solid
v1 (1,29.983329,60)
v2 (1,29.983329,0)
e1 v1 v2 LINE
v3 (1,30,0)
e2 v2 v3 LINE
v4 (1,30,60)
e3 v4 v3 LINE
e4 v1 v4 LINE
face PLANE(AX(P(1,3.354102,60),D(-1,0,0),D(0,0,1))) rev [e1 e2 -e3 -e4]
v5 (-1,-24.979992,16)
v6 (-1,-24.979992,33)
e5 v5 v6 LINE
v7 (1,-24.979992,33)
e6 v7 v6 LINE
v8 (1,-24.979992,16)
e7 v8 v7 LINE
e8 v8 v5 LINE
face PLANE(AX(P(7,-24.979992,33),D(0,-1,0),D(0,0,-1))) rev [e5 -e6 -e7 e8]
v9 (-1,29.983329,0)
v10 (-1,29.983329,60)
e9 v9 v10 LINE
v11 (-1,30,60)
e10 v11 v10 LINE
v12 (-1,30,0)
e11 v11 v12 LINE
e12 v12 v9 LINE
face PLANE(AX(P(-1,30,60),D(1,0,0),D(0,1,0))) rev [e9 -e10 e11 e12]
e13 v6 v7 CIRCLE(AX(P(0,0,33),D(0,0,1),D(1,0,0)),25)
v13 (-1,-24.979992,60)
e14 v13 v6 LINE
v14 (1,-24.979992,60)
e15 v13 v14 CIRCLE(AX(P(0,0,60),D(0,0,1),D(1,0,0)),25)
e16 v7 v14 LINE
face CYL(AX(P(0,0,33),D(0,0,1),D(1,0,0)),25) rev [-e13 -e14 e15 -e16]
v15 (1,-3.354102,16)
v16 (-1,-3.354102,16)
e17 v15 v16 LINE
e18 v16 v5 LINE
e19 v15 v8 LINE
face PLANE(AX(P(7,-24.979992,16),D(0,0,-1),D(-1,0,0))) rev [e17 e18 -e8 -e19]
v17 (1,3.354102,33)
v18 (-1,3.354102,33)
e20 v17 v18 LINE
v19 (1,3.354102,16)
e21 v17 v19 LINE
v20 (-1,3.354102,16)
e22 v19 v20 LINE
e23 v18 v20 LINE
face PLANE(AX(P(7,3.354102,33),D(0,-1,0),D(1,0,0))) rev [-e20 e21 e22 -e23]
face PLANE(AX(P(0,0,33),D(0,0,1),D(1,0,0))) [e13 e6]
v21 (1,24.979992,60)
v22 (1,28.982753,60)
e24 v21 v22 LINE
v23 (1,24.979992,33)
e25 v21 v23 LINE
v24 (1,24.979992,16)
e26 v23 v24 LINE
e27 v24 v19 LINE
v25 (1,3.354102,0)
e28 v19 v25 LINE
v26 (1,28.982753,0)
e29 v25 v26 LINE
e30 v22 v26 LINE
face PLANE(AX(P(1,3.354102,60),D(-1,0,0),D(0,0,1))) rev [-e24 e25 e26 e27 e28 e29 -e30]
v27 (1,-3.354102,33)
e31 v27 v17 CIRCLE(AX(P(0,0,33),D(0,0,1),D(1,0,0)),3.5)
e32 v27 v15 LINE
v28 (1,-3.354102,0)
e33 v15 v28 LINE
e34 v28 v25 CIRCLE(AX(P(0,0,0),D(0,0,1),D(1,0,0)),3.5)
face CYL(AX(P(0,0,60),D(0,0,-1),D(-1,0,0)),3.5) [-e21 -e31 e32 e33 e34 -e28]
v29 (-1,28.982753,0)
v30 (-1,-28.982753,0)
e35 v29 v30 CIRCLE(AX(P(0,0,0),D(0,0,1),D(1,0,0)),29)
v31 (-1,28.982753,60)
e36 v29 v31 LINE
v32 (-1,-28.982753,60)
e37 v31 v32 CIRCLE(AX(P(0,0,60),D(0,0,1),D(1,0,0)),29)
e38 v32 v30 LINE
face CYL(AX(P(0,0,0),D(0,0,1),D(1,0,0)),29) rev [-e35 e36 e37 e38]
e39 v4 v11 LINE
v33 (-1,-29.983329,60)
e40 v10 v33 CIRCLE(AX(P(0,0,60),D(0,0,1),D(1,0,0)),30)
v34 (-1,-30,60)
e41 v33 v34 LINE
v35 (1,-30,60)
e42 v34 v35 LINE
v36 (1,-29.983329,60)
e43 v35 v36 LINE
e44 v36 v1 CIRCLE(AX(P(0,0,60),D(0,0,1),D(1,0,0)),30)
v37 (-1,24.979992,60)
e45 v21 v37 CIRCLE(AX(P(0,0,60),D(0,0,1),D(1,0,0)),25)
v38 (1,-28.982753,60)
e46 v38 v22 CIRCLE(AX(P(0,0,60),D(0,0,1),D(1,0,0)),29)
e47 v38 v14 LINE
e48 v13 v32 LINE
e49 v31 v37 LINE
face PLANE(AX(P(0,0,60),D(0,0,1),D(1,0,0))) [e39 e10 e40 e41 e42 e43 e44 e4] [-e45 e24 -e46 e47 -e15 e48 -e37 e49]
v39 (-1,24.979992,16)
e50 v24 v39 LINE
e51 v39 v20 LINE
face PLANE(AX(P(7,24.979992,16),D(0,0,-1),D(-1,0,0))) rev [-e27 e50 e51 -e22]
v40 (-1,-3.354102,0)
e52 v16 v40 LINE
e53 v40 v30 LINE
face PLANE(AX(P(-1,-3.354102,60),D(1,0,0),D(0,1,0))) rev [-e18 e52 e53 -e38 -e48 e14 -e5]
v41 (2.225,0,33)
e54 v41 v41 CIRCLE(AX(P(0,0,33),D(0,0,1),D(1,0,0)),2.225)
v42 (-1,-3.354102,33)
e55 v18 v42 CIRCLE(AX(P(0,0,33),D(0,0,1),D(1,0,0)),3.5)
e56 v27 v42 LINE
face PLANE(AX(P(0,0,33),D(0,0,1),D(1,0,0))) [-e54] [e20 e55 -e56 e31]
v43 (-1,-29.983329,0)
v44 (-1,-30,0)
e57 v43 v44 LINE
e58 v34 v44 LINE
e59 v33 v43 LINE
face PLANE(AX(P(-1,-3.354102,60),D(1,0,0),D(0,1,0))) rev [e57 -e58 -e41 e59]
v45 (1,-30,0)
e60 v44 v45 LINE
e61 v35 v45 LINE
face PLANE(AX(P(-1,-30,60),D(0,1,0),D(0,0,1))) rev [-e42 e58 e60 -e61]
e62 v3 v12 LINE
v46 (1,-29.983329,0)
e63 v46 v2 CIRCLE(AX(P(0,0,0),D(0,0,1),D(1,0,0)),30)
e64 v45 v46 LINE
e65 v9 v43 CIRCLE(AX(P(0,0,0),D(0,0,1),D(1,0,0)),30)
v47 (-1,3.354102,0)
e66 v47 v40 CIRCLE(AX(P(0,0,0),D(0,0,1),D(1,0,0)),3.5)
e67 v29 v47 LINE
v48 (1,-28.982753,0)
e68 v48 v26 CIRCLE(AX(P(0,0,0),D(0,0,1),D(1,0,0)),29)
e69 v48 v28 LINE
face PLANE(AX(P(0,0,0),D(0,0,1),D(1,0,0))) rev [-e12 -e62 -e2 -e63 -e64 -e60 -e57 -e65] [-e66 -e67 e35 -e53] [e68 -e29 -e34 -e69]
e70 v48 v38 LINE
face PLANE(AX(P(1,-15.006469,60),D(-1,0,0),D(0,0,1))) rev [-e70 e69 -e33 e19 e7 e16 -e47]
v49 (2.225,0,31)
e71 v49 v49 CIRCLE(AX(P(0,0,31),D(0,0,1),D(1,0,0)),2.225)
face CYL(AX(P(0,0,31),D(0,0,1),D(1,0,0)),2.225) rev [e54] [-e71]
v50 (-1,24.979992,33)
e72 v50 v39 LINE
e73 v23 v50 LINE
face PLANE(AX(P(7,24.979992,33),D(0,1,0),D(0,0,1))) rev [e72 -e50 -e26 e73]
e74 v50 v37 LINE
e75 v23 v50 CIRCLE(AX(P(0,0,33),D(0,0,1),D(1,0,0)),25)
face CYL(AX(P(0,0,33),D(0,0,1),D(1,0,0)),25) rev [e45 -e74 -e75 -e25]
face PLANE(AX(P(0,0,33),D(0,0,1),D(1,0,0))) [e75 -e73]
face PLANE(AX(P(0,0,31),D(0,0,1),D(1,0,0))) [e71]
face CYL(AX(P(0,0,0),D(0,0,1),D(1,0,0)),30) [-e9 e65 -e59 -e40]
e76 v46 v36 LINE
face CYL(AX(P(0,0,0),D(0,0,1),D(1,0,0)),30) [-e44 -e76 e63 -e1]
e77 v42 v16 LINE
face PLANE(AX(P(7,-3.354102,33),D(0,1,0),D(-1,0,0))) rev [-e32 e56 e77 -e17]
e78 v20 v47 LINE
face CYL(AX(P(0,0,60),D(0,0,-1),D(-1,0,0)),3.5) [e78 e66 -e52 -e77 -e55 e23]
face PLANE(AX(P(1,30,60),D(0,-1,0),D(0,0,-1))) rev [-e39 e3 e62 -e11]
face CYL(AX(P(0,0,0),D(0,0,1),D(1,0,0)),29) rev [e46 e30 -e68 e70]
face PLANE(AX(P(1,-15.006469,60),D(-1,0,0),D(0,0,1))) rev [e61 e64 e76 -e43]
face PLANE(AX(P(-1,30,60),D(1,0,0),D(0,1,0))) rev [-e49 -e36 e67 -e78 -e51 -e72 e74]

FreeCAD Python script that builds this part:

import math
import FreeCAD as App
import Part
import Sketcher
Q = App.Units.Quantity

doc = App.newDocument("Part")
body = doc.addObject("PartDesign::Body", "Body")

sketch1 = doc.addObject("Sketcher::SketchObject", "Sketch")
body.addObject(sketch1)
sketch1.AttachmentSupport = (doc.XY_Plane, [""])
sketch1.MapMode = "FlatFace"
sketch1.addGeometry([
    Part.ArcOfCircle(Part.Circle(App.Vector(0, 0, 0), App.Vector(0, 0, 1), 3.5), math.radians(-73.39845), math.radians(73.39845)),
    Part.LineSegment(App.Vector(1, 3.354102, 0), App.Vector(1, 30, 0)),
    Part.LineSegment(App.Vector(1, 30, 0), App.Vector(-1, 30, 0)),
    Part.LineSegment(App.Vector(-1, 30, 0), App.Vector(-1, 3.354102, 0)),
    Part.ArcOfCircle(Part.Circle(App.Vector(0, 0, 0), App.Vector(0, 0, 1), 3.5), math.radians(106.60155), math.radians(253.39845)),
    Part.LineSegment(App.Vector(-1, -3.354102, 0), App.Vector(-1, -30, 0)),
    Part.LineSegment(App.Vector(-1, -30, 0), App.Vector(1, -30, 0)),
    Part.LineSegment(App.Vector(1, -30, 0), App.Vector(1, -3.354102, 0)),
], False)
sketch1.addConstraint([
    Sketcher.Constraint("Coincident", 0, 2, 1, 1),
    Sketcher.Constraint("Coincident", 1, 2, 2, 1),
    Sketcher.Constraint("Coincident", 2, 2, 3, 1),
    Sketcher.Constraint("Coincident", 3, 2, 4, 1),
    Sketcher.Constraint("Coincident", 4, 2, 5, 1),
    Sketcher.Constraint("Coincident", 5, 2, 6, 1),
    Sketcher.Constraint("Coincident", 6, 2, 7, 1),
    Sketcher.Constraint("Coincident", 7, 2, 0, 1),
    Sketcher.Constraint("Vertical", 1),
    Sketcher.Constraint("Horizontal", 2),
    Sketcher.Constraint("Vertical", 3),
    Sketcher.Constraint("Vertical", 5),
    Sketcher.Constraint("Horizontal", 6),
    Sketcher.Constraint("Vertical", 7),
    Sketcher.Constraint("Coincident", 0, 3, -1, 1),
    Sketcher.Constraint("Coincident", 4, 3, -1, 1),
    Sketcher.Constraint("Equal", 0, 4),
    Sketcher.Constraint("Symmetric", 1, 2, 5, 2, -1, 1),
    Sketcher.Constraint("Horizontal", 0, 2, 3, 2),
    Sketcher.Constraint("Horizontal", 4, 2, 7, 2),
    Sketcher.Constraint("Radius", 0, Q("3.5 mm")),
    Sketcher.Constraint("DistanceX", 2, 2, 2, 1, Q("2 mm")),
    Sketcher.Constraint("DistanceY", -1, 1, 1, 2, Q("30 mm")),
])
pad1 = doc.addObject("PartDesign::Pad", "Pad")
body.addObject(pad1)
pad1.Profile = sketch1
pad1.Length = 60

sketch2 = doc.addObject("Sketcher::SketchObject", "Sketch001")
body.addObject(sketch2)
sketch2.AttachmentSupport = (doc.XY_Plane, [""])
sketch2.MapMode = "FlatFace"
sketch2.AttachmentOffset = App.Placement(App.Vector(0, 0, 60), App.Rotation())
sketch2.addGeometry([
    Part.Circle(App.Vector(0, 0, 0), App.Vector(0, 0, 1), 30),
    Part.Circle(App.Vector(0, 0, 0), App.Vector(0, 0, 1), 29),
], False)
sketch2.addConstraint([
    Sketcher.Constraint("Coincident", 0, 3, -1, 1),
    Sketcher.Constraint("Coincident", 1, 3, -1, 1),
    Sketcher.Constraint("Diameter", 0, Q("60 mm")),
    Sketcher.Constraint("Diameter", 1, Q("58 mm")),
])
pad2 = doc.addObject("PartDesign::Pad", "Pad001")
body.addObject(pad2)
pad2.Profile = sketch2
pad2.Length = 60
pad2.Reversed = True

sketch3 = doc.addObject("Sketcher::SketchObject", "Sketch002")
body.addObject(sketch3)
sketch3.AttachmentSupport = (doc.XY_Plane, [""])
sketch3.MapMode = "FlatFace"
sketch3.AttachmentOffset = App.Placement(App.Vector(0, 0, 60), App.Rotation())
sketch3.addGeometry(Part.Circle(App.Vector(0, 0, 0), App.Vector(0, 0, 1), 25), False)
sketch3.addConstraint([
    Sketcher.Constraint("Coincident", 0, 3, -1, 1),
    Sketcher.Constraint("Diameter", 0, Q("50 mm")),
])
pocket1 = doc.addObject("PartDesign::Pocket", "Pocket")
body.addObject(pocket1)
pocket1.Profile = sketch3
pocket1.Length = 27

sketch4 = doc.addObject("Sketcher::SketchObject", "Sketch003")
body.addObject(sketch4)
sketch4.AttachmentSupport = (doc.YZ_Plane, [""])
sketch4.MapMode = "FlatFace"
sketch4.AttachmentOffset = App.Placement(App.Vector(0, 0, -1), App.Rotation())
sketch4.addGeometry([
    Part.LineSegment(App.Vector(-3.354102, 16, 0), App.Vector(-24.979992, 16, 0)),
    Part.LineSegment(App.Vector(-24.979992, 16, 0), App.Vector(-24.979992, 33, 0)),
    Part.LineSegment(App.Vector(-24.979992, 33, 0), App.Vector(-3.354102, 33, 0)),
    Part.LineSegment(App.Vector(-3.354102, 33, 0), App.Vector(-3.354102, 16, 0)),
    Part.LineSegment(App.Vector(24.979992, 16, 0), App.Vector(3.354102, 16, 0)),
    Part.LineSegment(App.Vector(3.354102, 16, 0), App.Vector(3.354102, 33, 0)),
    Part.LineSegment(App.Vector(3.354102, 33, 0), App.Vector(24.979992, 33, 0)),
    Part.LineSegment(App.Vector(24.979992, 33, 0), App.Vector(24.979992, 16, 0)),
], False)
sketch4.addConstraint([
    Sketcher.Constraint("Coincident", 0, 2, 1, 1),
    Sketcher.Constraint("Coincident", 1, 2, 2, 1),
    Sketcher.Constraint("Coincident", 2, 2, 3, 1),
    Sketcher.Constraint("Coincident", 3, 2, 0, 1),
    Sketcher.Constraint("Coincident", 4, 2, 5, 1),
    Sketcher.Constraint("Coincident", 5, 2, 6, 1),
    Sketcher.Constraint("Coincident", 6, 2, 7, 1),
    Sketcher.Constraint("Coincident", 7, 2, 4, 1),
    Sketcher.Constraint("Horizontal", 0),
    Sketcher.Constraint("Vertical", 1),
    Sketcher.Constraint("Horizontal", 2),
    Sketcher.Constraint("Vertical", 3),
    Sketcher.Constraint("Horizontal", 4),
    Sketcher.Constraint("Vertical", 5),
    Sketcher.Constraint("Horizontal", 6),
    Sketcher.Constraint("Vertical", 7),
    Sketcher.Constraint("Symmetric", 3, 2, 4, 2, -2),
    Sketcher.Constraint("Symmetric", 1, 2, 6, 2, -2),
    Sketcher.Constraint("DistanceY", 1, 1, 1, 2, Q("17 mm")),
    Sketcher.Constraint("DistanceY", -1, 1, 0, 2, Q("16 mm")),
    Sketcher.Constraint("DistanceX", 0, 2, 0, 1, Q("21.62589 mm")),
    Sketcher.Constraint("DistanceX", 2, 2, -1, 1, Q("3.354102 mm")),
])
pocket2 = doc.addObject("PartDesign::Pocket", "Pocket001")
body.addObject(pocket2)
pocket2.Profile = sketch4
pocket2.Length = 8
pocket2.Reversed = True

sketch5 = doc.addObject("Sketcher::SketchObject", "Sketch004")
body.addObject(sketch5)
sketch5.AttachmentSupport = (doc.XY_Plane, [""])
sketch5.MapMode = "FlatFace"
sketch5.AttachmentOffset = App.Placement(App.Vector(0, 0, 33), App.Rotation())
sketch5.addGeometry(Part.Circle(App.Vector(0, 0, 0), App.Vector(0, 0, 1), 2.225), False)
sketch5.addConstraint([
    Sketcher.Constraint("Coincident", 0, 3, -1, 1),
    Sketcher.Constraint("Diameter", 0, Q("4.45 mm")),
])
pocket3 = doc.addObject("PartDesign::Pocket", "Pocket002")
body.addObject(pocket3)
pocket3.Profile = sketch5
pocket3.Length = 2

doc.recompute()
